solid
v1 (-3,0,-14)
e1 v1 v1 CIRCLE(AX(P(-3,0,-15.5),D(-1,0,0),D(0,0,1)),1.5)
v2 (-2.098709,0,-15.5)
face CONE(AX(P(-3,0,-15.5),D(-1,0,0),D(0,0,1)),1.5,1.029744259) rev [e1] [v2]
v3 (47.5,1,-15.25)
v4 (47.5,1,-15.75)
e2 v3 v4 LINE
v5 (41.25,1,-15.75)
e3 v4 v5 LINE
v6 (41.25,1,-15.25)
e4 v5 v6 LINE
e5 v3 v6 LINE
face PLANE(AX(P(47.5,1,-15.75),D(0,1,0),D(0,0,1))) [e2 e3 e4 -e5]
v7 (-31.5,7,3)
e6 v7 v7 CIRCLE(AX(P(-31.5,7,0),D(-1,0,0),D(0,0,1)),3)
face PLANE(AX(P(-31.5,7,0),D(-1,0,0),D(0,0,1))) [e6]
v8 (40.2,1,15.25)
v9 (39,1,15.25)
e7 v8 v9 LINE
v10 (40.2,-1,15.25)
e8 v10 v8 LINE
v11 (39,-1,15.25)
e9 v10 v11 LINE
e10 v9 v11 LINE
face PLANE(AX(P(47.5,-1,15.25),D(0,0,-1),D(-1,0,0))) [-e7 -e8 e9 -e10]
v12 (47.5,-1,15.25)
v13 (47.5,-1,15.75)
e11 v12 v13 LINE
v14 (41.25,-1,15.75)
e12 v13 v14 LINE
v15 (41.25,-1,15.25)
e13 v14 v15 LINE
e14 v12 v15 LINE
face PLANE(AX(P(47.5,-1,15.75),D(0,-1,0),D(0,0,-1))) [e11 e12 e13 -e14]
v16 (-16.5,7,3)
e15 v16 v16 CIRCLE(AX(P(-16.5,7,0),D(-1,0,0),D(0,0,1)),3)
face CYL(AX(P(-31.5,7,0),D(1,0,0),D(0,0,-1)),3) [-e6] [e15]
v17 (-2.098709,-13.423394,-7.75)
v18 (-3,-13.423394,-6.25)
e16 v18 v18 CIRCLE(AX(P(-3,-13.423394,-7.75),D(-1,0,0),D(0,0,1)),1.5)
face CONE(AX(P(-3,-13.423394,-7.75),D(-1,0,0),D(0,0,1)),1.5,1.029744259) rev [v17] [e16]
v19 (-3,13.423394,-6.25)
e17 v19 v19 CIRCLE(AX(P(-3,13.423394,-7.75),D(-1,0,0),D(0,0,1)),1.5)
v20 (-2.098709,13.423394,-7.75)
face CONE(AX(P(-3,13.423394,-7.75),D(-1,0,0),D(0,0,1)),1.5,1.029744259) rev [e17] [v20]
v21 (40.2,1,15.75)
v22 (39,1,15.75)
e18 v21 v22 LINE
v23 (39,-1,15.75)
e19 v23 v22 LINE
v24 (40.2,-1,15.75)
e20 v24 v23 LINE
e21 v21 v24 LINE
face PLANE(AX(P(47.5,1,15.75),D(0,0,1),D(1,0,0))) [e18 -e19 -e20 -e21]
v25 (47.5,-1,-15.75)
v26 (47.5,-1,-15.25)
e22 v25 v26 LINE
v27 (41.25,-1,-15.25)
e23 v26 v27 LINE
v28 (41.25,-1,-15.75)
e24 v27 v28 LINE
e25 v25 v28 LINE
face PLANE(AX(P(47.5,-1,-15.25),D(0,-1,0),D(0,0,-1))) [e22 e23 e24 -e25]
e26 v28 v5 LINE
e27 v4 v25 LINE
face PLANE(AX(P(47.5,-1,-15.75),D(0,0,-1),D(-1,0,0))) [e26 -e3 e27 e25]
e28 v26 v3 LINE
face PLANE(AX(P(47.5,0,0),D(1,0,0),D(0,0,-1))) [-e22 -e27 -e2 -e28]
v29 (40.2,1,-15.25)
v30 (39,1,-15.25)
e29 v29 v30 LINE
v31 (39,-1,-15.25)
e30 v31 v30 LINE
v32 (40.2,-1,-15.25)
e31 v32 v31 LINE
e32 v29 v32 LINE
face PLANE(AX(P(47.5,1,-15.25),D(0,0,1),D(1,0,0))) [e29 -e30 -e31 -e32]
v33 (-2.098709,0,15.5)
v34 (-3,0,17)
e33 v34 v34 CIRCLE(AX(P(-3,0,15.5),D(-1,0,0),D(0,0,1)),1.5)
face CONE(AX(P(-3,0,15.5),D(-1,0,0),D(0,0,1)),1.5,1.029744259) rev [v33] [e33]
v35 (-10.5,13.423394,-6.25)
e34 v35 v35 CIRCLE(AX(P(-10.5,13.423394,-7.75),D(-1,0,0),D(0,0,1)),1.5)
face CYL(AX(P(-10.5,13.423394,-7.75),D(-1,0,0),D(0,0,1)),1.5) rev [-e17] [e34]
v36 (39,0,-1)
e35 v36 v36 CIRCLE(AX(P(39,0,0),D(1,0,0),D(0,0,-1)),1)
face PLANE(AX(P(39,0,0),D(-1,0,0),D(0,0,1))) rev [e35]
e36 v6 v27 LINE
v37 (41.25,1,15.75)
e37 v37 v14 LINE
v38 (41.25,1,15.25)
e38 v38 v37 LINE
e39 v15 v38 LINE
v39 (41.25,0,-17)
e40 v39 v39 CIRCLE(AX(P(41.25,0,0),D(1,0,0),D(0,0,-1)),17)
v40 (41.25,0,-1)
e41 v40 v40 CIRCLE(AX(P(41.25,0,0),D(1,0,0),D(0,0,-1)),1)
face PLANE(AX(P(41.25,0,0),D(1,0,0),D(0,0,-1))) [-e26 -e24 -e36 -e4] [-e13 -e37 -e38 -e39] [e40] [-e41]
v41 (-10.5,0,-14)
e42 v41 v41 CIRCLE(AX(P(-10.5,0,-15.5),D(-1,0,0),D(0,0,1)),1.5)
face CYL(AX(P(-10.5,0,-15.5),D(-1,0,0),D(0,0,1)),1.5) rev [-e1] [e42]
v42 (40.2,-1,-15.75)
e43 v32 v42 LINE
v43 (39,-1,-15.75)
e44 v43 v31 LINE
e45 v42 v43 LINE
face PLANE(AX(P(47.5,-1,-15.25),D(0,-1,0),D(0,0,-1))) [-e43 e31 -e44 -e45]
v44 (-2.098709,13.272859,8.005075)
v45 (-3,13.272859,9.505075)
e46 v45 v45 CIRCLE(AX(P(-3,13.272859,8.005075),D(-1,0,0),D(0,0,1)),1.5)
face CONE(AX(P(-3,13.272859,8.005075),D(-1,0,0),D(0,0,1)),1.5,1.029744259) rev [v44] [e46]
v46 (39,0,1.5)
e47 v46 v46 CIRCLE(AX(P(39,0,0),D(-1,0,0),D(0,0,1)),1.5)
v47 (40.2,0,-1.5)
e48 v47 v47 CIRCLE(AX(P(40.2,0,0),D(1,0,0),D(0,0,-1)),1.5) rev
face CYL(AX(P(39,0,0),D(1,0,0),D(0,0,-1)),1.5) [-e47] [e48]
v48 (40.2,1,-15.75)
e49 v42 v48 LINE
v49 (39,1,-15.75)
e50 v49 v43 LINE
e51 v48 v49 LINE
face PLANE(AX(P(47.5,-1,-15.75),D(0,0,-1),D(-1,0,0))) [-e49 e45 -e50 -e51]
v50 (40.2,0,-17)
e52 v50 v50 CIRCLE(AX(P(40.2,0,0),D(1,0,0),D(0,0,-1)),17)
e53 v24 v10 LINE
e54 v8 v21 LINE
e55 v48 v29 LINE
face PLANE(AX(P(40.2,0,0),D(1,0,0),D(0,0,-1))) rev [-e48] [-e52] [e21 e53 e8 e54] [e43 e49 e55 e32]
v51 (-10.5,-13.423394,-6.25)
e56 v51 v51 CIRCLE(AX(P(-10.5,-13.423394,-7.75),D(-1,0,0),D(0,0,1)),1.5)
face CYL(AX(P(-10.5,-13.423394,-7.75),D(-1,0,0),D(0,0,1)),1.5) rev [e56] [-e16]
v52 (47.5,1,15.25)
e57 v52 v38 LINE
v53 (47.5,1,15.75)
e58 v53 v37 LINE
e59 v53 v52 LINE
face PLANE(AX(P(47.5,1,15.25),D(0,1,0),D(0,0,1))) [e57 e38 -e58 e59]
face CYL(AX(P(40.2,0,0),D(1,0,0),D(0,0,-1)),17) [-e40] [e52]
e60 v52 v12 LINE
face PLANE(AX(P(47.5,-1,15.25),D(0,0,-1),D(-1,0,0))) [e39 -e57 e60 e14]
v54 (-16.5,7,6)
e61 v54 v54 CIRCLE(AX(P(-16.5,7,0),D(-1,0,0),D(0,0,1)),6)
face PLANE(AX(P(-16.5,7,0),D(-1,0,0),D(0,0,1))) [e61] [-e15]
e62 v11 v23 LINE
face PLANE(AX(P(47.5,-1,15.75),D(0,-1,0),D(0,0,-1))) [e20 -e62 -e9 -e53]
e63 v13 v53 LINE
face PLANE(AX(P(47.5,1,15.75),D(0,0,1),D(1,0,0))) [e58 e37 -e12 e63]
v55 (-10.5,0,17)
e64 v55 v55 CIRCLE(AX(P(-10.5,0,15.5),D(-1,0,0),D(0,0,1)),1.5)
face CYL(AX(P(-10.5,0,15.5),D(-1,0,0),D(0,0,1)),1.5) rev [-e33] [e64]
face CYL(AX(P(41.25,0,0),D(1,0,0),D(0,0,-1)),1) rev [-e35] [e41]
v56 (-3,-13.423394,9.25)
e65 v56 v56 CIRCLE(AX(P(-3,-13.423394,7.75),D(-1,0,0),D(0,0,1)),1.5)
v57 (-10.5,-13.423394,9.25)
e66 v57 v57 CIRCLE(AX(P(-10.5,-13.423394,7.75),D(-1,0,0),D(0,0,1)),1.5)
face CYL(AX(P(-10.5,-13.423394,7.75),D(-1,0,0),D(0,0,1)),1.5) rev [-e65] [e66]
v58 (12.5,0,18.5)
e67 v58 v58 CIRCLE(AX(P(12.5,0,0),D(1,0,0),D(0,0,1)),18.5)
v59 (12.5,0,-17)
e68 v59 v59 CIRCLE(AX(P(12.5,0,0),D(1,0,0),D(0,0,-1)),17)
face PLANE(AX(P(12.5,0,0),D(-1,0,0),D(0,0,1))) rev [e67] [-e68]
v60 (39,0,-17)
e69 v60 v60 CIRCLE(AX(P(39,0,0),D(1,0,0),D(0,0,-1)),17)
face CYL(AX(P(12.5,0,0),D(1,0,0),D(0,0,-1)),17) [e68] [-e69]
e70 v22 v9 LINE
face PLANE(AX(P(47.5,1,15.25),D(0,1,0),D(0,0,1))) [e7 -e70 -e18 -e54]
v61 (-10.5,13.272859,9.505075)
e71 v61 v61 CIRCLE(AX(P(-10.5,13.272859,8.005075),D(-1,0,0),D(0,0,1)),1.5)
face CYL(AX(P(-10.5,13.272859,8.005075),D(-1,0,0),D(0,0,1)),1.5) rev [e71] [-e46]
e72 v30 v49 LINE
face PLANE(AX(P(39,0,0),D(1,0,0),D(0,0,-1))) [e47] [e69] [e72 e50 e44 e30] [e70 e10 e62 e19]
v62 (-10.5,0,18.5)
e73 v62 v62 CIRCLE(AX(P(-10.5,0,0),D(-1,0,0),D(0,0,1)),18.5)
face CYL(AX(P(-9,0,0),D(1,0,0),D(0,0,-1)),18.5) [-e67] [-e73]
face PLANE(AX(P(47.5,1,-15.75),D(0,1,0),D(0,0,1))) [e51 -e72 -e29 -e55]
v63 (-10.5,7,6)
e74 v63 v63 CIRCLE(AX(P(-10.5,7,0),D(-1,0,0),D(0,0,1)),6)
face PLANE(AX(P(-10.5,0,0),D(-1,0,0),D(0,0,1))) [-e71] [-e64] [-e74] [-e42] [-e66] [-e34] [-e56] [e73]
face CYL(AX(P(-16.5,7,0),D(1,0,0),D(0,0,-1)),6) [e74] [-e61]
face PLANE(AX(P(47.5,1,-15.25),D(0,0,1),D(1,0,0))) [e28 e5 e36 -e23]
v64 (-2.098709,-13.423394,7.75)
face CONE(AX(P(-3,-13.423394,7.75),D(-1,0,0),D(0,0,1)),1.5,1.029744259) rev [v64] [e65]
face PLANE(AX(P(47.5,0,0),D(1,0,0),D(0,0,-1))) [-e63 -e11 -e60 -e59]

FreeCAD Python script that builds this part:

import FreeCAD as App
import Part
import Sketcher
from FreeCAD import Vector

doc = App.newDocument("Part")
body = doc.addObject("PartDesign::Body", "Body")

# Sketch on YZ plane
sketch1 = body.newObject("Sketcher::SketchObject", "Sketch")
sketch1.AttachmentSupport = (doc.getObject("YZ_Plane"), [""])
sketch1.MapMode = "FlatFace"
sketch1.AttachmentOffset = App.Placement(Vector(0, 0, 41.25), App.Rotation())
sketch1.addGeometry(Part.Circle(Vector(0, 0, 0), Vector(0, 0, 1), 17), False)
sketch1.addConstraint([
    Sketcher.Constraint("Coincident", 0, 3, -1, 1),
    Sketcher.Constraint("Diameter", 0, 34.0),
])
pad1 = body.newObject("PartDesign::Pad", "Pad")
pad1.Profile = sketch1
pad1.Length = 1.05
pad1.Reversed = True

# Sketch on YZ plane
sketch2 = body.newObject("Sketcher::SketchObject", "Sketch001")
sketch2.AttachmentSupport = (doc.getObject("YZ_Plane"), [""])
sketch2.MapMode = "FlatFace"
sketch2.AttachmentOffset = App.Placement(Vector(0, 0, 40.2), App.Rotation())
sketch2.addGeometry([
    Part.LineSegment(Vector(1, 15.2, 0), Vector(-1, 15.2, 0)),  # 0
    Part.LineSegment(Vector(-1, 15.2, 0), Vector(-1, 15.8, 0)),  # 1
    Part.LineSegment(Vector(-1, 15.8, 0), Vector(1, 15.8, 0)),  # 2
    Part.LineSegment(Vector(1, 15.8, 0), Vector(1, 15.2, 0)),  # 3
    Part.LineSegment(Vector(1, -15.8, 0), Vector(-1, -15.8, 0)),  # 4
    Part.LineSegment(Vector(-1, -15.8, 0), Vector(-1, -15.2, 0)),  # 5
    Part.LineSegment(Vector(-1, -15.2, 0), Vector(1, -15.2, 0)),  # 6
    Part.LineSegment(Vector(1, -15.2, 0), Vector(1, -15.8, 0)),  # 7
], False)
sketch2.addConstraint([
    Sketcher.Constraint("Coincident", 0, 2, 1, 1),
    Sketcher.Constraint("Coincident", 1, 2, 2, 1),
    Sketcher.Constraint("Coincident", 2, 2, 3, 1),
    Sketcher.Constraint("Coincident", 3, 2, 0, 1),
    Sketcher.Constraint("Coincident", 4, 2, 5, 1),
    Sketcher.Constraint("Coincident", 5, 2, 6, 1),
    Sketcher.Constraint("Coincident", 6, 2, 7, 1),
    Sketcher.Constraint("Coincident", 7, 2, 4, 1),
    Sketcher.Constraint("Horizontal", 0),
    Sketcher.Constraint("Vertical", 1),
    Sketcher.Constraint("Horizontal", 2),
    Sketcher.Constraint("Vertical", 3),
    Sketcher.Constraint("Horizontal", 4),
    Sketcher.Constraint("Vertical", 5),
    Sketcher.Constraint("Horizontal", 6),
    Sketcher.Constraint("Vertical", 7),
    Sketcher.Constraint("Symmetric", 2, 2, 4, 2, -1, 1),
    Sketcher.Constraint("Symmetric", 0, 2, 6, 2, -1, 1),
    Sketcher.Constraint("Vertical", 1, 2, 4, 2),
    Sketcher.Constraint("DistanceX", 0, 2, 0, 1, 2.0),
    Sketcher.Constraint("DistanceY", 1, 1, 1, 2, 0.5),
    Sketcher.Constraint("DistanceY", 4, 2, 0, 2, 31.0),
])
pad2 = body.newObject("PartDesign::Pad", "Pad001")
pad2.Profile = sketch2
pad2.Type = "TwoLengths"
pad2.Length = 1.2
pad2.Length2 = 7.3
pad2.Reversed = True

# Sketch on YZ plane
sketch3 = body.newObject("Sketcher::SketchObject", "Sketch002")
sketch3.AttachmentSupport = (doc.getObject("YZ_Plane"), [""])
sketch3.MapMode = "FlatFace"
sketch3.AttachmentOffset = App.Placement(Vector(0, 0, 40.2), App.Rotation())
sketch3.addGeometry(Part.Circle(Vector(0, 0, 0), Vector(0, 0, 1), 1.5), False)
sketch3.addConstraint([
    Sketcher.Constraint("Coincident", 0, 3, -1, 1),
    Sketcher.Constraint("Diameter", 0, 3.0),
])
pad3 = body.newObject("PartDesign::Pad", "Pad002")
pad3.Profile = sketch3
pad3.Length = 1.2
pad3.Reversed = True

# Sketch on YZ plane
sketch4 = body.newObject("Sketcher::SketchObject", "Sketch003")
sketch4.AttachmentSupport = (doc.getObject("YZ_Plane"), [""])
sketch4.MapMode = "FlatFace"
sketch4.AttachmentOffset = App.Placement(Vector(0, 0, 39), App.Rotation())
sketch4.addGeometry(Part.Circle(Vector(0, 0, 0), Vector(0, 0, 1), 17), False)
sketch4.addConstraint([
    Sketcher.Constraint("Coincident", 0, 3, -1, 1),
    Sketcher.Constraint("Diameter", 0, 34.0),
])
pad4 = body.newObject("PartDesign::Pad", "Pad003")
pad4.Profile = sketch4
pad4.Length = 26.5
pad4.Reversed = True

# Sketch on YZ plane
sketch5 = body.newObject("Sketcher::SketchObject", "Sketch004")
sketch5.AttachmentSupport = (doc.getObject("YZ_Plane"), [""])
sketch5.MapMode = "FlatFace"
sketch5.AttachmentOffset = App.Placement(Vector(0, 0, 12.5), App.Rotation())
sketch5.addGeometry(Part.Circle(Vector(0, 0, 0), Vector(0, 0, 1), 18), False)
sketch5.addConstraint([
    Sketcher.Constraint("Coincident", 0, 3, -1, 1),
    Sketcher.Constraint("Diameter", 0, 37.0),
])
pad5 = body.newObject("PartDesign::Pad", "Pad004")
pad5.Profile = sketch5
pad5.Length = 21.5
pad5.Reversed = True

# Sketch on YZ plane
sketch6 = body.newObject("Sketcher::SketchObject", "Sketch005")
sketch6.AttachmentSupport = (doc.getObject("YZ_Plane"), [""])
sketch6.MapMode = "FlatFace"
sketch6.AttachmentOffset = App.Placement(Vector(0, 0, -9), App.Rotation())
sketch6.addGeometry(Part.Circle(Vector(0, 0, 0), Vector(0, 0, 1), 18), False)
sketch6.addConstraint([
    Sketcher.Constraint("Coincident", 0, 3, -1, 1),
    Sketcher.Constraint("Diameter", 0, 37.0),
])
pad6 = body.newObject("PartDesign::Pad", "Pad005")
pad6.Profile = sketch6
pad6.Length = 1.5
pad6.Reversed = True

# Sketch on YZ plane
sketch7 = body.newObject("Sketcher::SketchObject", "Sketch006")
sketch7.AttachmentSupport = (doc.getObject("YZ_Plane"), [""])
sketch7.MapMode = "FlatFace"
sketch7.AttachmentOffset = App.Placement(Vector(0, 0, -10.5), App.Rotation())
sketch7.addGeometry(Part.Circle(Vector(7, 0, 0), Vector(0, 0, 1), 6), False)
sketch7.addConstraint([
    Sketcher.Constraint("PointOnObject", 0, 3, -1),
    Sketcher.Constraint("Diameter", 0, 12.0),
    Sketcher.Constraint("DistanceX", -1, 1, 0, 3, 7.0),
])
pad7 = body.newObject("PartDesign::Pad", "Pad006")
pad7.Profile = sketch7
pad7.Length = 6
pad7.Reversed = True

# Sketch on YZ plane
sketch8 = body.newObject("Sketcher::SketchObject", "Sketch007")
sketch8.AttachmentSupport = (doc.getObject("YZ_Plane"), [""])
sketch8.MapMode = "FlatFace"
sketch8.AttachmentOffset = App.Placement(Vector(0, 0, -16.5), App.Rotation())
sketch8.addGeometry(Part.Circle(Vector(7, 0, 0), Vector(0, 0, 1), 3), False)
sketch8.addConstraint([
    Sketcher.Constraint("PointOnObject", 0, 3, -1),
    Sketcher.Constraint("Diameter", 0, 6.0),
    Sketcher.Constraint("DistanceX", -1, 1, 0, 3, 7.0),
])
doc.recompute()
hole = body.newObject("PartDesign::Hole", "Hole")
hole.Profile = sketch8
hole.ThreadType = "None"
hole.Diameter = 6
hole.DepthType = "Dimension"
hole.Depth = 2.2
hole.DrillPoint = "Flat"
hole.Reversed = True

# Sketch on YZ plane
sketch9 = body.newObject("Sketcher::SketchObject", "Sketch008")
sketch9.AttachmentSupport = (doc.getObject("YZ_Plane"), [""])
sketch9.MapMode = "FlatFace"
sketch9.AttachmentOffset = App.Placement(Vector(0, 0, 41.25), App.Rotation())
sketch9.addGeometry(Part.Circle(Vector(0, 0, 0), Vector(0, 0, 1), 1), False)
sketch9.addConstraint([
    Sketcher.Constraint("Coincident", 0, 3, -1, 1),
    Sketcher.Constraint("Diameter", 0, 2.0),
])
doc.recompute()
hole2 = body.newObject("PartDesign::Hole", "Hole001")
hole2.Profile = sketch9
hole2.ThreadType = "None"
hole2.Diameter = 2
hole2.DepthType = "Dimension"
hole2.Depth = 2.25
hole2.DrillPoint = "Flat"

# Sketch on YZ plane
sketch10 = body.newObject("Sketcher::SketchObject", "Sketch009")
sketch10.AttachmentSupport = (doc.getObject("YZ_Plane"), [""])
sketch10.MapMode = "FlatFace"
sketch10.AttachmentOffset = App.Placement(Vector(0, 0, -10.5), App.Rotation())
sketch10.addGeometry([
    Part.Circle(Vector(0, -15.5, 0), Vector(0, 0, 1), 1.5),  # 0
    Part.Circle(Vector(13.4, -7.8, 0), Vector(0, 0, 1), 1.5),  # 1
    Part.Circle(Vector(13.3, 8, 0), Vector(0, 0, 1), 1.5),  # 2
    Part.Circle(Vector(0, 15.5, 0), Vector(0, 0, 1), 1.5),  # 3
    Part.Circle(Vector(-13.4, 7.8, 0), Vector(0, 0, 1), 1.5),  # 4
    Part.Circle(Vector(-13.4, -7.8, 0), Vector(0, 0, 1), 1.5),  # 5
], False)
sketch10.addConstraint([
    Sketcher.Constraint("Equal", 0, 1),
    Sketcher.Constraint("Equal", 1, 2),
    Sketcher.Constraint("Equal", 2, 3),
    Sketcher.Constraint("Equal", 3, 4),
    Sketcher.Constraint("Equal", 4, 5),
    Sketcher.Constraint("Symmetric", 0, 3, 3, 3, -1, 1),
    Sketcher.Constraint("Symmetric", 1, 3, 4, 3, -1, 1),
    Sketcher.Constraint("Symmetric", 1, 3, 5, 3, -2),
    Sketcher.Constraint("PointOnObject", 0, 3, -2),
    Sketcher.Constraint("Diameter", 0, 3.0),
    Sketcher.Constraint("DistanceY", 0, 3, 3, 3, 31.0),
    Sketcher.Constraint("DistanceY", 1, 3, 4, 3, 15.5),
    Sketcher.Constraint("DistanceX", -1, 1, 2, 3, 13.272859),
    Sketcher.Constraint("DistanceX", -1, 1, 1, 3, 13.423394),
    Sketcher.Constraint("DistanceY", -1, 1, 2, 3, 8.005075),
])
doc.recompute()
hole3 = body.newObject("PartDesign::Hole", "Hole002")
hole3.Profile = sketch10
hole3.ThreadType = "None"
hole3.Diameter = 3
hole3.DepthType = "Dimension"
hole3.Depth = 7.5
hole3.DrillPoint = "Angled"
hole3.DrillPointAngle = 118
hole3.Reversed = True

# Sketch on YZ plane
sketch11 = body.newObject("Sketcher::SketchObject", "Sketch010")
sketch11.AttachmentSupport = (doc.getObject("YZ_Plane"), [""])
sketch11.MapMode = "FlatFace"
sketch11.AttachmentOffset = App.Placement(Vector(0, 0, -10.5), App.Rotation())
sketch11.addGeometry(Part.Circle(Vector(7, 0, 0), Vector(0, 0, 1), 3), False)
sketch11.addConstraint([
    Sketcher.Constraint("PointOnObject", 0, 3, -1),
    Sketcher.Constraint("Diameter", 0, 6.0),
    Sketcher.Constraint("DistanceX", -1, 1, 0, 3, 7.0),
])
pad8 = body.newObject("PartDesign::Pad", "Pad007")
pad8.Profile = sketch11
pad8.Length = 21
pad8.Reversed = True

doc.recompute()
